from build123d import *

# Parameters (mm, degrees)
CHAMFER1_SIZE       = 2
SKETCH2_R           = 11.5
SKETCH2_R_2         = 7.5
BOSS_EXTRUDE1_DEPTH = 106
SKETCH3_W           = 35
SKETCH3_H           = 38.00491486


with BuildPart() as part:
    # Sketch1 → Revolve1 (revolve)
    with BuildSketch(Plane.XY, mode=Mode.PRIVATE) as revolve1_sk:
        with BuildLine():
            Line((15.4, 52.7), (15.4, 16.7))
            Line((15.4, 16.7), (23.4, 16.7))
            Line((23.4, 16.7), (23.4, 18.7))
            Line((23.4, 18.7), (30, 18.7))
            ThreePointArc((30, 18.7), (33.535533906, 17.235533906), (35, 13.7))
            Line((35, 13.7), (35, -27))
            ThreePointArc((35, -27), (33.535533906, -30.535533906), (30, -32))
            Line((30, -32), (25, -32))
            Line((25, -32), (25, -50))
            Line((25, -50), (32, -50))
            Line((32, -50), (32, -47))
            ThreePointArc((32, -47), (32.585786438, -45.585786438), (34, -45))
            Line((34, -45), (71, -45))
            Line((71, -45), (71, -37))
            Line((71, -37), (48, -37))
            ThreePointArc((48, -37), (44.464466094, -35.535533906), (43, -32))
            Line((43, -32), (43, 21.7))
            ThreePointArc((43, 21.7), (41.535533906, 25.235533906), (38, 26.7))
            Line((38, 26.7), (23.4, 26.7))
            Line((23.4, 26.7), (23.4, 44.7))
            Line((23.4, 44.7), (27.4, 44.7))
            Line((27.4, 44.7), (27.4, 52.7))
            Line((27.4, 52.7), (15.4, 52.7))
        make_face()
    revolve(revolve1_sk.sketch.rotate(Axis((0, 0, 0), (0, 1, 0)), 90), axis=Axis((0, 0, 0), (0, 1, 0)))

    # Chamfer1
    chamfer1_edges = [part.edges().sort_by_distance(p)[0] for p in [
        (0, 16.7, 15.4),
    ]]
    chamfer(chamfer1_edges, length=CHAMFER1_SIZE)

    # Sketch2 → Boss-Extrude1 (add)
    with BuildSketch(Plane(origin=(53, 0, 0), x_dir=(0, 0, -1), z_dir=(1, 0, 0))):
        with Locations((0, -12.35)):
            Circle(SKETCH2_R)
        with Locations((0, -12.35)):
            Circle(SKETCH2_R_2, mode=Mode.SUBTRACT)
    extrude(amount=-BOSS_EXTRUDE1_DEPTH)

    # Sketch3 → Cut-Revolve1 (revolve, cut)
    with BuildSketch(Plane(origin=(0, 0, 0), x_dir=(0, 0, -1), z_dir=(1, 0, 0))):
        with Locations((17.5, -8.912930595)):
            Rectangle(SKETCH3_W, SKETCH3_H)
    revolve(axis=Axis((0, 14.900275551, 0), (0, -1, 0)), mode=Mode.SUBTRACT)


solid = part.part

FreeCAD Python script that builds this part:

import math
import FreeCAD as App
import Part
import Sketcher

V = App.Vector
Q = App.Units.Quantity


def edges_at(feature, points):
    """Names of the edges that pass closest to the given points."""
    edges = feature.Shape.Edges
    near = lambda p: min(range(len(edges)), key=lambda i: edges[i].distToShape(Part.Vertex(*p))[0])
    return sorted({f"Edge{near(p) + 1}" for p in points})

doc = App.newDocument("Part")
body = doc.addObject("PartDesign::Body", "Body")

sketch1 = doc.addObject("Sketcher::SketchObject", "Sketch")
body.addObject(sketch1)
sketch1.AttachmentSupport = (doc.XY_Plane, [""])
sketch1.MapMode = "FlatFace"
sketch1.addGeometry([
    Part.LineSegment(V(15.4, 52.7, 0), V(15.4, 16.7, 0)),
    Part.LineSegment(V(15.4, 16.7, 0), V(23.4, 16.7, 0)),
    Part.LineSegment(V(23.4, 16.7, 0), V(23.4, 18.7, 0)),
    Part.LineSegment(V(23.4, 18.7, 0), V(30, 18.7, 0)),
    Part.ArcOfCircle(Part.Circle(V(30, 13.7, 0), V(0, 0, 1), 5), math.radians(0), math.radians(90)),
    Part.LineSegment(V(35, 13.7, 0), V(35, -27, 0)),
    Part.ArcOfCircle(Part.Circle(V(30, -27, 0), V(0, 0, 1), 5), math.radians(-90), math.radians(0)),
    Part.LineSegment(V(30, -32, 0), V(25, -32, 0)),
    Part.LineSegment(V(25, -32, 0), V(25, -50, 0)),
    Part.LineSegment(V(25, -50, 0), V(32, -50, 0)),
    Part.LineSegment(V(32, -50, 0), V(32, -47, 0)),
    Part.ArcOfCircle(Part.Circle(V(34, -47, 0), V(0, 0, 1), 2), math.radians(90), math.radians(180)),
    Part.LineSegment(V(34, -45, 0), V(71, -45, 0)),
    Part.LineSegment(V(71, -45, 0), V(71, -37, 0)),
    Part.LineSegment(V(71, -37, 0), V(48, -37, 0)),
    Part.ArcOfCircle(Part.Circle(V(48, -32, 0), V(0, 0, 1), 5), math.radians(180), math.radians(270)),
    Part.LineSegment(V(43, -32, 0), V(43, 21.7, 0)),
    Part.ArcOfCircle(Part.Circle(V(38, 21.7, 0), V(0, 0, 1), 5), math.radians(0), math.radians(90)),
    Part.LineSegment(V(38, 26.7, 0), V(23.4, 26.7, 0)),
    Part.LineSegment(V(23.4, 26.7, 0), V(23.4, 44.7, 0)),
    Part.LineSegment(V(23.4, 44.7, 0), V(27.4, 44.7, 0)),
    Part.LineSegment(V(27.4, 44.7, 0), V(27.4, 52.7, 0)),
    Part.LineSegment(V(27.4, 52.7, 0), V(15.4, 52.7, 0)),
], False)
sketch1.addConstraint([
    Sketcher.Constraint("Coincident", 0, 2, 1, 1),
    Sketcher.Constraint("Coincident", 1, 2, 2, 1),
    Sketcher.Constraint("Coincident", 2, 2, 3, 1),
    Sketcher.Constraint("Tangent", 3, 2, 4, 2),
    Sketcher.Constraint("Tangent", 4, 1, 5, 1),
    Sketcher.Constraint("Tangent", 5, 2, 6, 2),
    Sketcher.Constraint("Tangent", 6, 1, 7, 1),
    Sketcher.Constraint("Coincident", 7, 2, 8, 1),
    Sketcher.Constraint("Coincident", 8, 2, 9, 1),
    Sketcher.Constraint("Coincident", 9, 2, 10, 1),
    Sketcher.Constraint("Tangent", 10, 2, 11, 2),
    Sketcher.Constraint("Tangent", 11, 1, 12, 1),
    Sketcher.Constraint("Coincident", 12, 2, 13, 1),
    Sketcher.Constraint("Coincident", 13, 2, 14, 1),
    Sketcher.Constraint("Tangent", 14, 2, 15, 2),
    Sketcher.Constraint("Tangent", 15, 1, 16, 1),
    Sketcher.Constraint("Tangent", 16, 2, 17, 1),
    Sketcher.Constraint("Tangent", 17, 2, 18, 1),
    Sketcher.Constraint("Coincident", 18, 2, 19, 1),
    Sketcher.Constraint("Coincident", 19, 2, 20, 1),
    Sketcher.Constraint("Coincident", 20, 2, 21, 1),
    Sketcher.Constraint("Coincident", 21, 2, 22, 1),
    Sketcher.Constraint("Coincident", 22, 2, 0, 1),
    Sketcher.Constraint("Vertical", 0),
    Sketcher.Constraint("Horizontal", 1),
    Sketcher.Constraint("Vertical", 2),
    Sketcher.Constraint("Horizontal", 3),
    Sketcher.Constraint("Vertical", 5),
    Sketcher.Constraint("Horizontal", 7),
    Sketcher.Constraint("Vertical", 8),
    Sketcher.Constraint("Horizontal", 9),
    Sketcher.Constraint("Vertical", 10),
    Sketcher.Constraint("Horizontal", 12),
    Sketcher.Constraint("Vertical", 13),
    Sketcher.Constraint("Horizontal", 14),
    Sketcher.Constraint("Vertical", 16),
    Sketcher.Constraint("Horizontal", 18),
    Sketcher.Constraint("Vertical", 19),
    Sketcher.Constraint("Horizontal", 20),
    Sketcher.Constraint("Vertical", 21),
    Sketcher.Constraint("Horizontal", 22),
    Sketcher.Constraint("Equal", 4, 6),
    Sketcher.Constraint("Equal", 6, 15),
    Sketcher.Constraint("Equal", 15, 17),
    Sketcher.Constraint("Horizontal", 15, 3, 6, 1),
    Sketcher.Constraint("Vertical", 2, 2, 18, 2),
    Sketcher.Constraint("Equal", 1, 13),
    Sketcher.Constraint("Equal", 8, 19),
    Sketcher.Constraint("Equal", 13, 21),
    Sketcher.Constraint("Radius", 4, Q("5 mm")),
    Sketcher.Constraint("Radius", 11, Q("2 mm")),
    Sketcher.Constraint("DistanceX", 1, 1, 1, 2, Q("8 mm")),
    Sketcher.Constraint("DistanceX", 7, 2, 7, 1, Q("5 mm")),
    Sketcher.Constraint("DistanceX", 9, 1, 9, 2, Q("7 mm")),
    Sketcher.Constraint("DistanceX", 12, 1, 12, 2, Q("37 mm")),
    Sketcher.Constraint("DistanceX", 14, 2, 14, 1, Q("23 mm")),
    Sketcher.Constraint("DistanceX", 20, 1, 20, 2, Q("4 mm")),
    Sketcher.Constraint("DistanceY", 0, 2, 0, 1, Q("36 mm")),
    Sketcher.Constraint("DistanceY", 2, 1, 2, 2, Q("2 mm")),
    Sketcher.Constraint("DistanceY", 8, 2, 8, 1, Q("18 mm")),
    Sketcher.Constraint("DistanceX", 3, 1, 3, 2, Q("6.6 mm")),
    Sketcher.Constraint("DistanceY", 5, 2, 5, 1, Q("40.7 mm")),
    Sketcher.Constraint("DistanceX", -1, 1, 4, 3, Q("30 mm")),
    Sketcher.Constraint("DistanceY", 6, 3, -1, 1, Q("27 mm")),
])
revolution = doc.addObject("PartDesign::Revolution", "Revolution")
body.addObject(revolution)
revolution.Profile = sketch1
revolution.ReferenceAxis = (sketch1, ["V_Axis"])
revolution.Angle = 360
doc.recompute()

chamfer = doc.addObject("PartDesign::Chamfer", "Chamfer")
body.addObject(chamfer)
chamfer.Base = (revolution, edges_at(revolution, [(0, 16.7, 15.4)]))
chamfer.Size = 2

sketch2 = doc.addObject("Sketcher::SketchObject", "Sketch001")
body.addObject(sketch2)
sketch2.AttachmentSupport = (doc.YZ_Plane, [""])
sketch2.MapMode = "FlatFace"
sketch2.AttachmentOffset = App.Placement(V(0, 0, 53), App.Rotation())
sketch2.addGeometry([
    Part.Circle(V(-12.35, 0, 0), V(0, 0, 1), 11.5),
    Part.Circle(V(-12.35, 0, 0), V(0, 0, 1), 7.5),
], False)
sketch2.addConstraint([
    Sketcher.Constraint("Coincident", 1, 3, 0, 3),
    Sketcher.Constraint("PointOnObject", 0, 3, -1),
    Sketcher.Constraint("Diameter", 0, Q("23 mm")),
    Sketcher.Constraint("Diameter", 1, Q("15 mm")),
    Sketcher.Constraint("DistanceX", 0, 3, -1, 1, Q("12.35 mm")),
])
pad1 = doc.addObject("PartDesign::Pad", "Pad")
body.addObject(pad1)
pad1.Profile = sketch2
pad1.Length = 106
pad1.Reversed = True

sketch3 = doc.addObject("Sketcher::SketchObject", "Sketch002")
body.addObject(sketch3)
sketch3.AttachmentSupport = (doc.YZ_Plane, [""])
sketch3.MapMode = "FlatFace"
sketch3.addGeometry([
    Part.LineSegment(V(10.089527, 0, 0), V(-27.915388, 0, 0)),
    Part.LineSegment(V(-27.915388, 0, 0), V(-27.915388, -35, 0)),
    Part.LineSegment(V(-27.915388, -35, 0), V(10.089527, -35, 0)),
    Part.LineSegment(V(10.089527, -35, 0), V(10.089527, 0, 0)),
], False)
sketch3.addConstraint([
    Sketcher.Constraint("Coincident", 0, 2, 1, 1),
    Sketcher.Constraint("Coincident", 1, 2, 2, 1),
    Sketcher.Constraint("Coincident", 2, 2, 3, 1),
    Sketcher.Constraint("Coincident", 3, 2, 0, 1),
    Sketcher.Constraint("Horizontal", 0),
    Sketcher.Constraint("Vertical", 1),
    Sketcher.Constraint("Horizontal", 2),
    Sketcher.Constraint("Vertical", 3),
    Sketcher.Constraint("PointOnObject", 0, 2, -1),
    Sketcher.Constraint("DistanceY", 1, 2, 1, 1, Q("35 mm")),
    Sketcher.Constraint("DistanceX", 0, 2, 0, 1, Q("38.004915 mm")),
    Sketcher.Constraint("DistanceX", 0, 2, -1, 1, Q("27.915388 mm")),
])
groove = doc.addObject("PartDesign::Groove", "Groove")
body.addObject(groove)
groove.Profile = sketch3
groove.ReferenceAxis = (sketch3, ["H_Axis"])
groove.Angle = 360

doc.recompute()
